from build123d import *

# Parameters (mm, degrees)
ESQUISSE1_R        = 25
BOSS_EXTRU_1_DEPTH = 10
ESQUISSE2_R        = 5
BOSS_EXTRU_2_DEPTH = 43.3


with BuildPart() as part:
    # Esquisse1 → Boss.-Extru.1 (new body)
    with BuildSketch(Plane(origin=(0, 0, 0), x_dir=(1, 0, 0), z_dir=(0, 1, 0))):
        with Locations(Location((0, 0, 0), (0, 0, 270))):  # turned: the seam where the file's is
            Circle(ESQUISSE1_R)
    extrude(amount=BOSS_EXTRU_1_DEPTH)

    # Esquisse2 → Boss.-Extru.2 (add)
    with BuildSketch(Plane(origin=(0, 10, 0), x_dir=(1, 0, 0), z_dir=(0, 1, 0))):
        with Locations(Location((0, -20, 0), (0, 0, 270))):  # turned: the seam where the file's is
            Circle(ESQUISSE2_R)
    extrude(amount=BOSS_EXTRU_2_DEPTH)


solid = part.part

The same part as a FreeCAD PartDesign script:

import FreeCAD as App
import Part
import Sketcher
Q = App.Units.Quantity

doc = App.newDocument("Part")
params = doc.addObject("Spreadsheet::Sheet", "Params")
for row, (alias, value) in enumerate([
    ("sketch1_diameter", "50 mm"),
    ("pad1_length", "10 mm"),
    ("sketch2_diameter", "10 mm"),
    ("pad2_length", "43.3 mm"),
], start=1):
    params.set(f"A{row}", alias)
    params.set(f"B{row}", "=" + value)
    params.setAlias(f"B{row}", alias)

body = doc.addObject("PartDesign::Body", "Body")

# Sketch on XZ plane
sketch1 = body.newObject("Sketcher::SketchObject", "Sketch")
sketch1.AttachmentSupport = (doc.getObject("XZ_Plane"), [""])
sketch1.MapMode = "FlatFace"
sketch1.addGeometry(Part.Circle(App.Vector(0, 0, 0), App.Vector(0, 0, 1), 25), False)
sketch1.addConstraint(Sketcher.Constraint("Coincident", 0, 3, -1, 1))
sketch1.addConstraint(Sketcher.Constraint("Diameter", 0, Q("50 mm")))
sketch1.setExpression("Constraints[1]", "Params.sketch1_diameter")
pad1 = body.newObject("PartDesign::Pad", "Pad")
pad1.Profile = sketch1
pad1.setExpression("Length", "Params.pad1_length")
pad1.Reversed = True

# Sketch on XZ plane
sketch2 = body.newObject("Sketcher::SketchObject", "Sketch001")
sketch2.AttachmentSupport = (doc.getObject("XZ_Plane"), [""])
sketch2.MapMode = "FlatFace"
sketch2.AttachmentOffset = App.Placement(App.Vector(0, 0, -10), App.Rotation())
sketch2.addGeometry(Part.Circle(App.Vector(0, 20, 0), App.Vector(0, 0, 1), 5), False)
sketch2.addConstraint(Sketcher.Constraint("PointOnObject", 0, 3, -2))
sketch2.addConstraint(Sketcher.Constraint("Diameter", 0, Q("10 mm")))
sketch2.addConstraint(Sketcher.Constraint("DistanceY", -1, 1, 0, 3, Q("20 mm")))
sketch2.setExpression("Constraints[1]", "Params.sketch2_diameter")
pad2 = body.newObject("PartDesign::Pad", "Pad001")
pad2.Profile = sketch2
pad2.setExpression("Length", "Params.pad2_length")
pad2.Reversed = True

doc.recompute()
